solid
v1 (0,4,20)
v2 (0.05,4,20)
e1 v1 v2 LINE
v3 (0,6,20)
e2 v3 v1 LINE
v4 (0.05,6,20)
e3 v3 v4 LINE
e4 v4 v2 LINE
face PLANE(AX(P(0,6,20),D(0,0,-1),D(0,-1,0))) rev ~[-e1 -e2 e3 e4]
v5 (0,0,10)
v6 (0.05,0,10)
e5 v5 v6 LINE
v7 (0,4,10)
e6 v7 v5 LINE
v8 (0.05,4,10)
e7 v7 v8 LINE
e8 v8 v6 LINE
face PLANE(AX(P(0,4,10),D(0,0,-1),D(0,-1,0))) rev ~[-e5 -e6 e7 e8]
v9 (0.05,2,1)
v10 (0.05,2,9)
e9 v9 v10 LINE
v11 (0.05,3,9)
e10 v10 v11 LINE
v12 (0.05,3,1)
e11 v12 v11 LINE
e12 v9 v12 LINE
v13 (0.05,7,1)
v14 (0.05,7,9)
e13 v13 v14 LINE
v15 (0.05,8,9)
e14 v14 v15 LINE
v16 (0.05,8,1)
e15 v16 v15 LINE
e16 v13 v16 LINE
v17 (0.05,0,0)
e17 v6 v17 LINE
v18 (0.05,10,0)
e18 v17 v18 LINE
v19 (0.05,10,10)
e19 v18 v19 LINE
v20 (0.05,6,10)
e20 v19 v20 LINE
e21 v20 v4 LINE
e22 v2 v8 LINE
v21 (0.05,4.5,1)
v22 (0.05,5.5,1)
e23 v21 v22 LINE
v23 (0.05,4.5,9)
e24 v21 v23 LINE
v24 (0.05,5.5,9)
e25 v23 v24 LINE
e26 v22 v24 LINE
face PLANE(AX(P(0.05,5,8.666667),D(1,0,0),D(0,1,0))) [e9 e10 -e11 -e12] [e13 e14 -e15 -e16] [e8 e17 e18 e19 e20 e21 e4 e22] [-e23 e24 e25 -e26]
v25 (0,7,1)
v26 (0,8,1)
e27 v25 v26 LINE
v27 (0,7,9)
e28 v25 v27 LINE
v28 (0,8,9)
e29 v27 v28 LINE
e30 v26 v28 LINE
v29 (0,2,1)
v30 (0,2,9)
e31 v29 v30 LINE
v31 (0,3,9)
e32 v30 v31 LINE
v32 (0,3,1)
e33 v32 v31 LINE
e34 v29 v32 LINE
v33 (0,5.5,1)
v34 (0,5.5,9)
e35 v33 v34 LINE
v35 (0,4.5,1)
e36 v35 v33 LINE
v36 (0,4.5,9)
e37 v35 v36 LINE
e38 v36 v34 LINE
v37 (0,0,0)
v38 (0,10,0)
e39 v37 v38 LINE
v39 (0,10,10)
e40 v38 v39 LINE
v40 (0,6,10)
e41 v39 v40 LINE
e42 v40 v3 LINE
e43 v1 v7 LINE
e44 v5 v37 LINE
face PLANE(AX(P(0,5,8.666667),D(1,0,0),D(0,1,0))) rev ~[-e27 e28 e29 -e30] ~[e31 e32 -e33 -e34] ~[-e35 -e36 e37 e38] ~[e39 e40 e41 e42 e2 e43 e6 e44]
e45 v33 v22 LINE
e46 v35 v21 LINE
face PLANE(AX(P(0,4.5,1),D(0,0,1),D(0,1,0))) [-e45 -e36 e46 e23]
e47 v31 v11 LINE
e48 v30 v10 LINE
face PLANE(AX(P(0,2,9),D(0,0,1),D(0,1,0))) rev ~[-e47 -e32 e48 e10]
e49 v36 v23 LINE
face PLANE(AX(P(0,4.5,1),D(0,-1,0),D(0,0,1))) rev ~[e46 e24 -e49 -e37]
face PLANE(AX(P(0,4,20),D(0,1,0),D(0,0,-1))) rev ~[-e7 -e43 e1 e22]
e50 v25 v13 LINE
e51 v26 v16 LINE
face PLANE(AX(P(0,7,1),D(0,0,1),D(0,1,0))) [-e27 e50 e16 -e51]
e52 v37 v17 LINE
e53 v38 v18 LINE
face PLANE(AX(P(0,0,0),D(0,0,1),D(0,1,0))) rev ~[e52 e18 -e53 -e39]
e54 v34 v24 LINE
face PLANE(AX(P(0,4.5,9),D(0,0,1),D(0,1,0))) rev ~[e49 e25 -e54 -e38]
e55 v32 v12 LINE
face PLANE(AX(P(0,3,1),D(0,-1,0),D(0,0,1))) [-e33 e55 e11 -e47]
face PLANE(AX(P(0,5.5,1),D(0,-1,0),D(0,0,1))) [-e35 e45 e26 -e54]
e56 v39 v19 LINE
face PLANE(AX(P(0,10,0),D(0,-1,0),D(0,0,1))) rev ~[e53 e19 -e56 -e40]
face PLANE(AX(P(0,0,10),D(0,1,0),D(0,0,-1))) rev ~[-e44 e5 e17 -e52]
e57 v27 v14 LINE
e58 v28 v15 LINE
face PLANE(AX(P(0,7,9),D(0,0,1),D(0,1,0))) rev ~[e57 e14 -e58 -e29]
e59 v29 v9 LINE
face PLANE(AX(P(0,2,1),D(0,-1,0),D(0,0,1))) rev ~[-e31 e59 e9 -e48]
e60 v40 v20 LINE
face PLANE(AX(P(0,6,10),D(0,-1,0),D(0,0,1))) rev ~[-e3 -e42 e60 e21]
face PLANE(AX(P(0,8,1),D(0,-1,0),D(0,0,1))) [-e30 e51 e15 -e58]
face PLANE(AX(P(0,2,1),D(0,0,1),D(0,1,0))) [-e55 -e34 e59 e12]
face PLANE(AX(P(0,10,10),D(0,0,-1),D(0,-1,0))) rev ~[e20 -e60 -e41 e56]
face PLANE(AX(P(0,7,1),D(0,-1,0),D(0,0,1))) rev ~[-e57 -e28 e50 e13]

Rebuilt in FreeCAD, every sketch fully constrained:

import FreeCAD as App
import Part
import Sketcher
from FreeCAD import Vector

doc = App.newDocument("Part")
body = doc.addObject("PartDesign::Body", "Body")

# Sketch on YZ plane
sketch1 = doc.addObject("Sketcher::SketchObject", "Sketch")
body.addObject(sketch1)
sketch1.AttachmentSupport = (doc.YZ_Plane, [""])
sketch1.MapMode = "FlatFace"
sketch1.addGeometry(Part.LineSegment(Vector(0, 0, 0), Vector(10, 0, 0)), False)
sketch1.addGeometry(Part.LineSegment(Vector(10, 0, 0), Vector(10, 10, 0)), False)
sketch1.addGeometry(Part.LineSegment(Vector(10, 10, 0), Vector(6, 10, 0)), False)
sketch1.addGeometry(Part.LineSegment(Vector(6, 10, 0), Vector(6, 20, 0)), False)
sketch1.addGeometry(Part.LineSegment(Vector(6, 20, 0), Vector(4, 20, 0)), False)
sketch1.addGeometry(Part.LineSegment(Vector(4, 20, 0), Vector(4, 10, 0)), False)
sketch1.addGeometry(Part.LineSegment(Vector(4, 10, 0), Vector(0, 10, 0)), False)
sketch1.addGeometry(Part.LineSegment(Vector(0, 10, 0), Vector(0, 0, 0)), False)
sketch1.addGeometry(Part.LineSegment(Vector(3, 1, 0), Vector(2, 1, 0)), False)
sketch1.addGeometry(Part.LineSegment(Vector(2, 1, 0), Vector(2, 9, 0)), False)
sketch1.addGeometry(Part.LineSegment(Vector(2, 9, 0), Vector(3, 9, 0)), False)
sketch1.addGeometry(Part.LineSegment(Vector(3, 9, 0), Vector(3, 1, 0)), False)
sketch1.addGeometry(Part.LineSegment(Vector(5.5, 1, 0), Vector(4.5, 1, 0)), False)
sketch1.addGeometry(Part.LineSegment(Vector(4.5, 1, 0), Vector(4.5, 9, 0)), False)
sketch1.addGeometry(Part.LineSegment(Vector(4.5, 9, 0), Vector(5.5, 9, 0)), False)
sketch1.addGeometry(Part.LineSegment(Vector(5.5, 9, 0), Vector(5.5, 1, 0)), False)
sketch1.addGeometry(Part.LineSegment(Vector(8, 1, 0), Vector(7, 1, 0)), False)
sketch1.addGeometry(Part.LineSegment(Vector(7, 1, 0), Vector(7, 9, 0)), False)
sketch1.addGeometry(Part.LineSegment(Vector(7, 9, 0), Vector(8, 9, 0)), False)
sketch1.addGeometry(Part.LineSegment(Vector(8, 9, 0), Vector(8, 1, 0)), False)
sketch1.addConstraint(Sketcher.Constraint("Coincident", 0, 2, 1, 1))
sketch1.addConstraint(Sketcher.Constraint("Coincident", 1, 2, 2, 1))
sketch1.addConstraint(Sketcher.Constraint("Coincident", 2, 2, 3, 1))
sketch1.addConstraint(Sketcher.Constraint("Coincident", 3, 2, 4, 1))
sketch1.addConstraint(Sketcher.Constraint("Coincident", 4, 2, 5, 1))
sketch1.addConstraint(Sketcher.Constraint("Coincident", 5, 2, 6, 1))
sketch1.addConstraint(Sketcher.Constraint("Coincident", 6, 2, 7, 1))
sketch1.addConstraint(Sketcher.Constraint("Coincident", 7, 2, 0, 1))
sketch1.addConstraint(Sketcher.Constraint("Coincident", 8, 2, 9, 1))
sketch1.addConstraint(Sketcher.Constraint("Coincident", 9, 2, 10, 1))
sketch1.addConstraint(Sketcher.Constraint("Coincident", 10, 2, 11, 1))
sketch1.addConstraint(Sketcher.Constraint("Coincident", 11, 2, 8, 1))
sketch1.addConstraint(Sketcher.Constraint("Coincident", 12, 2, 13, 1))
sketch1.addConstraint(Sketcher.Constraint("Coincident", 13, 2, 14, 1))
sketch1.addConstraint(Sketcher.Constraint("Coincident", 14, 2, 15, 1))
sketch1.addConstraint(Sketcher.Constraint("Coincident", 15, 2, 12, 1))
sketch1.addConstraint(Sketcher.Constraint("Coincident", 16, 2, 17, 1))
sketch1.addConstraint(Sketcher.Constraint("Coincident", 17, 2, 18, 1))
sketch1.addConstraint(Sketcher.Constraint("Coincident", 18, 2, 19, 1))
sketch1.addConstraint(Sketcher.Constraint("Coincident", 19, 2, 16, 1))
sketch1.addConstraint(Sketcher.Constraint("Horizontal", 0))
sketch1.addConstraint(Sketcher.Constraint("Vertical", 1))
sketch1.addConstraint(Sketcher.Constraint("Horizontal", 2))
sketch1.addConstraint(Sketcher.Constraint("Vertical", 3))
sketch1.addConstraint(Sketcher.Constraint("Horizontal", 4))
sketch1.addConstraint(Sketcher.Constraint("Vertical", 5))
sketch1.addConstraint(Sketcher.Constraint("Horizontal", 6))
sketch1.addConstraint(Sketcher.Constraint("Vertical", 7))
sketch1.addConstraint(Sketcher.Constraint("Horizontal", 8))
sketch1.addConstraint(Sketcher.Constraint("Vertical", 9))
sketch1.addConstraint(Sketcher.Constraint("Horizontal", 10))
sketch1.addConstraint(Sketcher.Constraint("Vertical", 11))
sketch1.addConstraint(Sketcher.Constraint("Horizontal", 12))
sketch1.addConstraint(Sketcher.Constraint("Vertical", 13))
sketch1.addConstraint(Sketcher.Constraint("Horizontal", 14))
sketch1.addConstraint(Sketcher.Constraint("Vertical", 15))
sketch1.addConstraint(Sketcher.Constraint("Horizontal", 16))
sketch1.addConstraint(Sketcher.Constraint("Vertical", 17))
sketch1.addConstraint(Sketcher.Constraint("Horizontal", 18))
sketch1.addConstraint(Sketcher.Constraint("Vertical", 19))
sketch1.addConstraint(Sketcher.Constraint("Coincident", 7, 2, -1, 1))
sketch1.addConstraint(Sketcher.Constraint("Horizontal", 2, 2, 5, 2))
sketch1.addConstraint(Sketcher.Constraint("Horizontal", 11, 2, 12, 2))
sketch1.addConstraint(Sketcher.Constraint("Horizontal", 10, 2, 13, 2))
sketch1.addConstraint(Sketcher.Constraint("Horizontal", 15, 2, 16, 2))
sketch1.addConstraint(Sketcher.Constraint("Horizontal", 14, 2, 17, 2))
sketch1.addConstraint(Sketcher.Constraint("Equal", 2, 6))
sketch1.addConstraint(Sketcher.Constraint("Equal", 10, 12))
sketch1.addConstraint(Sketcher.Constraint("Equal", 14, 16))
sketch1.addConstraint(Sketcher.Constraint("Equal", 0, 1))
sketch1.addConstraint(Sketcher.Constraint("Equal", 1, 3))
sketch1.addConstraint(Sketcher.Constraint("DistanceX", 0, 1, 0, 2, 10.0))
sketch1.addConstraint(Sketcher.Constraint("DistanceX", 2, 2, 2, 1, 4.0))
sketch1.addConstraint(Sketcher.Constraint("DistanceX", 8, 2, 8, 1, 1.0))
sketch1.addConstraint(Sketcher.Constraint("DistanceY", 9, 1, 9, 2, 8.0))
sketch1.addConstraint(Sketcher.Constraint("DistanceX", -1, 1, 8, 2, 2.0))
sketch1.addConstraint(Sketcher.Constraint("DistanceY", -1, 1, 8, 2, 1.0))
sketch1.addConstraint(Sketcher.Constraint("DistanceX", -1, 1, 16, 2, 7.0))
sketch1.addConstraint(Sketcher.Constraint("DistanceX", -1, 1, 12, 2, 4.5))
pad1 = doc.addObject("PartDesign::Pad", "Pad")
body.addObject(pad1)
pad1.Profile = sketch1
pad1.Length = 0.05

doc.recompute()
